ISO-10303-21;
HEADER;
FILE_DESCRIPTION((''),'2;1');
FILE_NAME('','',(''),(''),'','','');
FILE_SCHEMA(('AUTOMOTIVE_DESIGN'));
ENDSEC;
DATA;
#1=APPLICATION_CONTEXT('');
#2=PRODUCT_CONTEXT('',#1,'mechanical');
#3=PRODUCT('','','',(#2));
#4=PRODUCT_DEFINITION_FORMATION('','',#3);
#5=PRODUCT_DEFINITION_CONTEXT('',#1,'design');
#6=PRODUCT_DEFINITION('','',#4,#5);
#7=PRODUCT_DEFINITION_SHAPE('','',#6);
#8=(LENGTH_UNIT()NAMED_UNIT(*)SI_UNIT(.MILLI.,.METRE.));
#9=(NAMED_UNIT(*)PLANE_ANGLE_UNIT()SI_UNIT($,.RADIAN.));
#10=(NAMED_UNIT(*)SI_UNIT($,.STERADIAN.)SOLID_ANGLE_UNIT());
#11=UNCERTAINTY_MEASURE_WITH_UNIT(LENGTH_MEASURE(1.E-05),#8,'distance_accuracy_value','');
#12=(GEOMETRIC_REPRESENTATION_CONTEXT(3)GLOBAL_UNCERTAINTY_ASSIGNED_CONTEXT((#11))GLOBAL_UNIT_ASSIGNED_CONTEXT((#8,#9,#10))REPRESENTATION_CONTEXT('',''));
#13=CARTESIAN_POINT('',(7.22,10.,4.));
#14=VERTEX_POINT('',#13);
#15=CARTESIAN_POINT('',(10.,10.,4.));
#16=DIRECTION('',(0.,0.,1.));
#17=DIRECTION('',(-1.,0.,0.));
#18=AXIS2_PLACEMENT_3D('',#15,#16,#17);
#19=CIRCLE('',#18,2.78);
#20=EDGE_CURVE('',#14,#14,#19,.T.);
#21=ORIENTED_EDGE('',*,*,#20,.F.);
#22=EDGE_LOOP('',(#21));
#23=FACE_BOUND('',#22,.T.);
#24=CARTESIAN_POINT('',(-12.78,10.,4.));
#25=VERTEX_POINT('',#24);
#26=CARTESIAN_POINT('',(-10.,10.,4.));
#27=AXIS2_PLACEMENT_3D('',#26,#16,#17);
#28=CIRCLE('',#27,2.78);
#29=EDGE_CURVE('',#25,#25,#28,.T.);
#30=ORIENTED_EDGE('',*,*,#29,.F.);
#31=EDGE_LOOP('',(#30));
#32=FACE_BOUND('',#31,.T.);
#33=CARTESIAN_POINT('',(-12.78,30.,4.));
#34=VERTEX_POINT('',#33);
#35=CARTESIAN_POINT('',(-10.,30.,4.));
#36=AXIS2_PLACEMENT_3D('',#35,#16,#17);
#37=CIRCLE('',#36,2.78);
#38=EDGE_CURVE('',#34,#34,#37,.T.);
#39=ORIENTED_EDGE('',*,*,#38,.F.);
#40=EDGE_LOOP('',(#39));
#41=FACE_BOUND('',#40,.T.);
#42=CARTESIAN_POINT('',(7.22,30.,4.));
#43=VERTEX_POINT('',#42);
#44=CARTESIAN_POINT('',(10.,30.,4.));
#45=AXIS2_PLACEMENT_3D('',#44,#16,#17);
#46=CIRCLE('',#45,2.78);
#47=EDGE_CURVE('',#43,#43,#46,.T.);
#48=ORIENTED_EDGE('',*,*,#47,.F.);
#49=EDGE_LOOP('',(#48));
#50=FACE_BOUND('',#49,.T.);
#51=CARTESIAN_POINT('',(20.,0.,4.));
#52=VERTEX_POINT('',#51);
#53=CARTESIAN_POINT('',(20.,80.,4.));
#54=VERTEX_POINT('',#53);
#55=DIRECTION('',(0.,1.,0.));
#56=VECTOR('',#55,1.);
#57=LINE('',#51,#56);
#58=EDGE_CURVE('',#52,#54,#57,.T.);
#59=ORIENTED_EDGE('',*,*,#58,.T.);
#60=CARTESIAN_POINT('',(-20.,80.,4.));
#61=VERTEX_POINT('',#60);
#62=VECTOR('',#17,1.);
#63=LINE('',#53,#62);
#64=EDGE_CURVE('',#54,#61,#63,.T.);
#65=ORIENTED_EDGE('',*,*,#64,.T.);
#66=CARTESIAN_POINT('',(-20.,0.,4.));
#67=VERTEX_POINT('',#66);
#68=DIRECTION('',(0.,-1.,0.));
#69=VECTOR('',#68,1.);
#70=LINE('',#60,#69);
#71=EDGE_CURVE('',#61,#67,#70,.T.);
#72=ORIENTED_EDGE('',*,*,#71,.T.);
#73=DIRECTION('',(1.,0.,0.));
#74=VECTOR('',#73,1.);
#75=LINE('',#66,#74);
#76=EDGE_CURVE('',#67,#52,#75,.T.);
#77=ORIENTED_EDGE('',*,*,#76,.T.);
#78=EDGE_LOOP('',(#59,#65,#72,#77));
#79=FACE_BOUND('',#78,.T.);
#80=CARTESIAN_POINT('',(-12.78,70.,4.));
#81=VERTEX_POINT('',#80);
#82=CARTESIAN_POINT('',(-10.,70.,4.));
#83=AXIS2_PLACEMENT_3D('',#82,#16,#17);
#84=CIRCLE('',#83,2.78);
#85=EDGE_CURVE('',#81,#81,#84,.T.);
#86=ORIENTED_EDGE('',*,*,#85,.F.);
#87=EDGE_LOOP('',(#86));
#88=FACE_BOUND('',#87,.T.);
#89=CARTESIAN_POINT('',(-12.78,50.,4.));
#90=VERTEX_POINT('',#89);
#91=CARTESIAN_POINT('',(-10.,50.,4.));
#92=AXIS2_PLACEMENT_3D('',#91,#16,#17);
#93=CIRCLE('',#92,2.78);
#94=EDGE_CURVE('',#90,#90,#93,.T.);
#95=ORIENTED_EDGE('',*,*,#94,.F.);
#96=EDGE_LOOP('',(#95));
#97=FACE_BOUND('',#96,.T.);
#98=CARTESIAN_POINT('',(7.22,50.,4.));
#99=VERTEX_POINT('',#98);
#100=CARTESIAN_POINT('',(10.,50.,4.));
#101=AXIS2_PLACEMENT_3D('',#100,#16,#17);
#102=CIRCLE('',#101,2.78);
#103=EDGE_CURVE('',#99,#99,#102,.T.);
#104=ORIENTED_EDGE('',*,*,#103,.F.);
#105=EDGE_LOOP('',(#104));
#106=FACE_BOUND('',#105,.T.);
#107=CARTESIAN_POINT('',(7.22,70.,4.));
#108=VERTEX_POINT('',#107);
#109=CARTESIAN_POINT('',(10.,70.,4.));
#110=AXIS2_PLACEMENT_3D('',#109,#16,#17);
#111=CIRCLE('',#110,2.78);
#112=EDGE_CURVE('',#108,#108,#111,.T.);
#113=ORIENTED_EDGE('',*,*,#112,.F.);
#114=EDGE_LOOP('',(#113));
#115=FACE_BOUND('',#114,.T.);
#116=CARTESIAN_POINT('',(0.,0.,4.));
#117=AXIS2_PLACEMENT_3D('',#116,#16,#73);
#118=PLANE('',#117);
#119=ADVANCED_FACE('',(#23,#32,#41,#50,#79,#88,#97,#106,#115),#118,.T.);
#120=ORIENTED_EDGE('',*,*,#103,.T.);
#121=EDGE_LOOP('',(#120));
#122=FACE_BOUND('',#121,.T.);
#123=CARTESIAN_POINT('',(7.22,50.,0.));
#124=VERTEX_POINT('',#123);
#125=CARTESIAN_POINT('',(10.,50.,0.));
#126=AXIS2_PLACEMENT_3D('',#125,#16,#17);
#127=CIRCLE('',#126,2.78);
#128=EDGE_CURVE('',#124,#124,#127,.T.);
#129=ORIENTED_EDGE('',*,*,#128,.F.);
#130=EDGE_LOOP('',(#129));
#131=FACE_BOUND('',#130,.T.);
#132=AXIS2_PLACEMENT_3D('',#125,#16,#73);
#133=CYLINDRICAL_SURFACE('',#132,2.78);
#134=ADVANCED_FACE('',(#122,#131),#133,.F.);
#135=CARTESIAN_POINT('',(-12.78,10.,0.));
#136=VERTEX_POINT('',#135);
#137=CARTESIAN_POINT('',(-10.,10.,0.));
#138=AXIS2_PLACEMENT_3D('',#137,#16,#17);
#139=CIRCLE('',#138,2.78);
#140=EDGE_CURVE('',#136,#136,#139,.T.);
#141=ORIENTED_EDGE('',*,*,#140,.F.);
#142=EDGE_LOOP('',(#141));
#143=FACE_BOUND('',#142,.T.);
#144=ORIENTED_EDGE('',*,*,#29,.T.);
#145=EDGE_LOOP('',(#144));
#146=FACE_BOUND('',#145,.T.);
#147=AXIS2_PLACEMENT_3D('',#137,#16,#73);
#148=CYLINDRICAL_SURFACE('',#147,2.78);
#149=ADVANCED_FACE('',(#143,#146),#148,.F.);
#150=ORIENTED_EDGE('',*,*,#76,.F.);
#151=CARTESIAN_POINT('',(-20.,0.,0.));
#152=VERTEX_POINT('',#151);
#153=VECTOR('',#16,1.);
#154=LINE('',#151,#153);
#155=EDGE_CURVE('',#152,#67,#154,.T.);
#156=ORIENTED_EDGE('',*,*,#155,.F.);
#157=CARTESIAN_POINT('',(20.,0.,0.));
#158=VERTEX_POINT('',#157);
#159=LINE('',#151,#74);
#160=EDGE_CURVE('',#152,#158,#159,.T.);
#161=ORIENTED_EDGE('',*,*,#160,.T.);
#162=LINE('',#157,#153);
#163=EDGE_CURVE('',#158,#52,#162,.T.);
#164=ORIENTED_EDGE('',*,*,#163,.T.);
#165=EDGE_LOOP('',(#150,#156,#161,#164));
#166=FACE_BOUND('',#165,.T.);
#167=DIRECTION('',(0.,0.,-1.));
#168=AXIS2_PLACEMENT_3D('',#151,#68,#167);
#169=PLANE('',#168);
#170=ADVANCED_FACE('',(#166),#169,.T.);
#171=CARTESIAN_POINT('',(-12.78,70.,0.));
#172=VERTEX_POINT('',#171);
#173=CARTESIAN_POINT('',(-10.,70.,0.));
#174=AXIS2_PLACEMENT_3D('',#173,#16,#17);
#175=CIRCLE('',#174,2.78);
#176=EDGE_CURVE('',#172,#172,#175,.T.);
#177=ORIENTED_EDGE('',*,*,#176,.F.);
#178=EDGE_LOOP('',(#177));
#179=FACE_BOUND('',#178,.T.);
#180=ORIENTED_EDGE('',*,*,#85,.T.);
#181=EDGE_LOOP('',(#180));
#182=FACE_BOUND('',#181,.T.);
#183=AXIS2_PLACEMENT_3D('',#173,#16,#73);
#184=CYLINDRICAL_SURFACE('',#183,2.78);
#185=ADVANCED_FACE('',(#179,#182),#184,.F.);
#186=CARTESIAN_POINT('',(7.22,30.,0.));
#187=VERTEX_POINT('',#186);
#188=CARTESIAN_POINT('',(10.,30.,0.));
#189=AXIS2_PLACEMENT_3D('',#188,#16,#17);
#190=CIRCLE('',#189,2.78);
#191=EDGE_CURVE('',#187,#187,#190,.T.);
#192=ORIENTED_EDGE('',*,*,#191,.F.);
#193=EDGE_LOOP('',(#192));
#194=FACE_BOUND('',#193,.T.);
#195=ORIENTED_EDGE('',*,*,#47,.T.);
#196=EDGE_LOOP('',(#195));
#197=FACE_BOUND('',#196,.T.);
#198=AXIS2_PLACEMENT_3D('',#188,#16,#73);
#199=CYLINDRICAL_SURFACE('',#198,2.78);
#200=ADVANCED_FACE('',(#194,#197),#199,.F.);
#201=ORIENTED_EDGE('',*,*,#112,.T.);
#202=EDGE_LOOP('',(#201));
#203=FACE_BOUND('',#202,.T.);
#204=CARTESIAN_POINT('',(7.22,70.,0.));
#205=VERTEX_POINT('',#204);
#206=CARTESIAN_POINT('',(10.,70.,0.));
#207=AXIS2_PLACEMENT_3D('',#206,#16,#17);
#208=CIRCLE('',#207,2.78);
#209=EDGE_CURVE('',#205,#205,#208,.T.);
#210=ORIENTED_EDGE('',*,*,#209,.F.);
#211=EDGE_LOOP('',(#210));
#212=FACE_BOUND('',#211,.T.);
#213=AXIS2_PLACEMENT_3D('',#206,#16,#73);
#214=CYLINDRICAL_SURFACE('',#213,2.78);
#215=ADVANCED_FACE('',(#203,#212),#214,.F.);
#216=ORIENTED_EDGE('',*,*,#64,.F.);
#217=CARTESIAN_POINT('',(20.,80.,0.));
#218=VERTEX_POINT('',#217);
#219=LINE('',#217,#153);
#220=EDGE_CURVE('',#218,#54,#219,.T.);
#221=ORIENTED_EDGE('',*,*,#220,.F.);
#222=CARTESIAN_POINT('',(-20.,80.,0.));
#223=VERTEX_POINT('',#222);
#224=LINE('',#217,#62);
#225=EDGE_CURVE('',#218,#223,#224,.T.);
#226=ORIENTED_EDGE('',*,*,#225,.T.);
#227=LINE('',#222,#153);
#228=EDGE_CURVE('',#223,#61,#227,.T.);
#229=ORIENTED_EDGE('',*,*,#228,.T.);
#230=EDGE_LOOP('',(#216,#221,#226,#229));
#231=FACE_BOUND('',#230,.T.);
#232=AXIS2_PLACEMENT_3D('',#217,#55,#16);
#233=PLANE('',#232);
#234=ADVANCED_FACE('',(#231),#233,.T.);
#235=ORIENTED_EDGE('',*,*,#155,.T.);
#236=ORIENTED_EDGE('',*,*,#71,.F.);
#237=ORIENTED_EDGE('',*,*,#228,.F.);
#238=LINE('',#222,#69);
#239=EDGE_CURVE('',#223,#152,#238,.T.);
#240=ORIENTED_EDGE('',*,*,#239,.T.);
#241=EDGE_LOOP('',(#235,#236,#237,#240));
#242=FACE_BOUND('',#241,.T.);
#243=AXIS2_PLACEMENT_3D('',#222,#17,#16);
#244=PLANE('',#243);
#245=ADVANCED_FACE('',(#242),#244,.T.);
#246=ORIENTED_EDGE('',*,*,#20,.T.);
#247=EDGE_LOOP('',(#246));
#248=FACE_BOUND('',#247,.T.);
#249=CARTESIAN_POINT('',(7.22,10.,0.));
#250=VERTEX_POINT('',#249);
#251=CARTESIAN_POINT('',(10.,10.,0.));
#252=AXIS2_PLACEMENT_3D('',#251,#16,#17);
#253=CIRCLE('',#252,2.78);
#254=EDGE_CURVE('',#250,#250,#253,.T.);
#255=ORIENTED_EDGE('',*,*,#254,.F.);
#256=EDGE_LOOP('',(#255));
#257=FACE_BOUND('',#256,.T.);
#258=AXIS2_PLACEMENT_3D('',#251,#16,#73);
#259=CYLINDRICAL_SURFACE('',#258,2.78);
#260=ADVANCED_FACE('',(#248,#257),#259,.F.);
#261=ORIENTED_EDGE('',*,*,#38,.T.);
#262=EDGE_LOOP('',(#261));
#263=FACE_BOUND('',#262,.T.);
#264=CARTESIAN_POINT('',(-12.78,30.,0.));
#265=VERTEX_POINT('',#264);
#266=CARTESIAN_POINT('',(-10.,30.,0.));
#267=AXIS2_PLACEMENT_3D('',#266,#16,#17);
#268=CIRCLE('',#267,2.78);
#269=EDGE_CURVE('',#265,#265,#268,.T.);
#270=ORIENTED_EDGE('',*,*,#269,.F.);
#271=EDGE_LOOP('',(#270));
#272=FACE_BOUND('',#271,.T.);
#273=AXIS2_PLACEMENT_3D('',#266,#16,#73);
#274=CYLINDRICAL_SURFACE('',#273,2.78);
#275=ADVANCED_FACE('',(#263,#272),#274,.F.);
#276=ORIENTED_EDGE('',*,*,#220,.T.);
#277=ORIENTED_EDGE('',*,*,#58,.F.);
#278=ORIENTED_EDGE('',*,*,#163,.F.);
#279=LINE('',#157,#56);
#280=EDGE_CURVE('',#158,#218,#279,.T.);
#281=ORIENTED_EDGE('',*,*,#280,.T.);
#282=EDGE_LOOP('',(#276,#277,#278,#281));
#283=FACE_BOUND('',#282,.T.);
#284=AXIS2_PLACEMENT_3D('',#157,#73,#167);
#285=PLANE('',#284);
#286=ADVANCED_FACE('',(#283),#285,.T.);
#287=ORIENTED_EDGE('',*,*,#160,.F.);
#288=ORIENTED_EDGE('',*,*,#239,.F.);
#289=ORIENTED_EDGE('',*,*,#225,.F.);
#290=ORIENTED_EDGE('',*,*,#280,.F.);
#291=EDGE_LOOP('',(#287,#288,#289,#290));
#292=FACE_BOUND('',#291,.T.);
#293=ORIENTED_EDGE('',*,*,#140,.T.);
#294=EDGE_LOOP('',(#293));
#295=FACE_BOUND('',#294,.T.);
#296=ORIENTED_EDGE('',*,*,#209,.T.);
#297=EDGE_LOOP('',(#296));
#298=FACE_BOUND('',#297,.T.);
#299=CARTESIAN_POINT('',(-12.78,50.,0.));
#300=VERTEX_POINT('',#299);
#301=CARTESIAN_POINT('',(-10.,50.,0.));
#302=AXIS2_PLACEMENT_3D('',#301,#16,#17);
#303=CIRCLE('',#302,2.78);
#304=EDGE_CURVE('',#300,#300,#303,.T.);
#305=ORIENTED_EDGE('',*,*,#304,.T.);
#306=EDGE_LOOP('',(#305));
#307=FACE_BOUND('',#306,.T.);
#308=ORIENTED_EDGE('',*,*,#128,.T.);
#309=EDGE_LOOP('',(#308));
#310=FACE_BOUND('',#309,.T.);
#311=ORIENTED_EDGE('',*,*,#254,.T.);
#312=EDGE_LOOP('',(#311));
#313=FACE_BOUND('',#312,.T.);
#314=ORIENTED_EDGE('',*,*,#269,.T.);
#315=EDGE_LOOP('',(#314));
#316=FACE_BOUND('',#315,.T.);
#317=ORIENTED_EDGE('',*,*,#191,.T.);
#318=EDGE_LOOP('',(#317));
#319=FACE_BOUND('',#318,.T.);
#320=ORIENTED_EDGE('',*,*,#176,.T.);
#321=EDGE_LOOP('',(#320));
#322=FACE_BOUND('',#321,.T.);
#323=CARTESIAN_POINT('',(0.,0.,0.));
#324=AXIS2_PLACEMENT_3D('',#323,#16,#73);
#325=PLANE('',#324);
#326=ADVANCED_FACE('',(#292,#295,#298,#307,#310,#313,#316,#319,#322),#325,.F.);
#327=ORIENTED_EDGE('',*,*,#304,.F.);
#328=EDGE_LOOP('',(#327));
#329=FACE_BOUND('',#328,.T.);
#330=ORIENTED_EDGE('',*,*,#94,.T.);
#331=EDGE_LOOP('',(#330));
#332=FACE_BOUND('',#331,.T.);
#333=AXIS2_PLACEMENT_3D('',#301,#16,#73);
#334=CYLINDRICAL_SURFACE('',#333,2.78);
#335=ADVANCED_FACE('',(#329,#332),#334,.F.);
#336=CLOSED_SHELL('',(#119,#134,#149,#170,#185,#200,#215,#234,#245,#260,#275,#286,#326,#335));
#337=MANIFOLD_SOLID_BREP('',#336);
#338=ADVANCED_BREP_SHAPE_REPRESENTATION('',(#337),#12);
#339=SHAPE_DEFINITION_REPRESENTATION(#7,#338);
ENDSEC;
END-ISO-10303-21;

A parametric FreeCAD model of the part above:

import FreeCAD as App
import Part
import Sketcher

V = App.Vector
Q = App.Units.Quantity


def add_polygon(sketch, points):
    """Adds a closed chain of lines whose ends are joined by coincident constraints."""
    first, n = sketch.GeometryCount, len(points)
    for a, b in zip(points, points[1:] + points[:1]):
        sketch.addGeometry(Part.LineSegment(App.Vector(*a, 0), App.Vector(*b, 0)), False)
    for i in range(n):
        sketch.addConstraint(Sketcher.Constraint("Coincident", first + i, 2, first + (i + 1) % n, 1))

doc = App.newDocument("Part")
body = doc.addObject("PartDesign::Body", "Body")

sketch1 = body.newObject("Sketcher::SketchObject", "Sketch")
sketch1.AttachmentSupport = (doc.getObject("XY_Plane"), [""])
sketch1.MapMode = "FlatFace"
sketch1.AttachmentOffset = App.Placement(V(0, 0, 4), App.Rotation())
add_polygon(sketch1, [(-20, 80), (-20, 0), (20, 0), (20, 80)])
sketch1.addGeometry(Part.Circle(V(-10, 10, 0), V(0, 0, 1), 2.78), False)
sketch1.addGeometry(Part.Circle(V(-10, 30, 0), V(0, 0, 1), 2.78), False)
sketch1.addGeometry(Part.Circle(V(10, 10, 0), V(0, 0, 1), 2.78), False)
sketch1.addGeometry(Part.Circle(V(10, 30, 0), V(0, 0, 1), 2.78), False)
sketch1.addGeometry(Part.Circle(V(-10, 50, 0), V(0, 0, 1), 2.78), False)
sketch1.addGeometry(Part.Circle(V(-10, 70, 0), V(0, 0, 1), 2.78), False)
sketch1.addGeometry(Part.Circle(V(10, 50, 0), V(0, 0, 1), 2.78), False)
sketch1.addGeometry(Part.Circle(V(10, 70, 0), V(0, 0, 1), 2.78), False)
sketch1.addConstraint([
    Sketcher.Constraint("Vertical", 0),
    Sketcher.Constraint("Horizontal", 1),
    Sketcher.Constraint("Vertical", 2),
    Sketcher.Constraint("Horizontal", 3),
    Sketcher.Constraint("Equal", 4, 5),
    Sketcher.Constraint("Equal", 5, 6),
    Sketcher.Constraint("Equal", 6, 7),
    Sketcher.Constraint("Equal", 7, 8),
    Sketcher.Constraint("Equal", 8, 9),
    Sketcher.Constraint("Equal", 9, 10),
    Sketcher.Constraint("Equal", 10, 11),
    Sketcher.Constraint("Symmetric", 0, 2, 1, 2, -1, 1),
    Sketcher.Constraint("Symmetric", 4, 3, 6, 3, -2),
    Sketcher.Constraint("Symmetric", 5, 3, 7, 3, -2),
    Sketcher.Constraint("Symmetric", 8, 3, 10, 3, -2),
    Sketcher.Constraint("Symmetric", 9, 3, 11, 3, -2),
    Sketcher.Constraint("Vertical", 4, 3, 5, 3),
    Sketcher.Constraint("Vertical", 5, 3, 8, 3),
    Sketcher.Constraint("Vertical", 8, 3, 9, 3),
    Sketcher.Constraint("Diameter", 4, Q("5.56 mm")),
    Sketcher.Constraint("DistanceX", 1, 1, 1, 2, Q("40 mm")),
    Sketcher.Constraint("DistanceY", 0, 2, 0, 1, Q("80 mm")),
    Sketcher.Constraint("DistanceX", 4, 3, -1, 1, Q("10 mm")),
    Sketcher.Constraint("DistanceY", -1, 1, 4, 3, Q("10 mm")),
    Sketcher.Constraint("DistanceY", -1, 1, 5, 3, Q("30 mm")),
    Sketcher.Constraint("DistanceY", -1, 1, 8, 3, Q("50 mm")),
    Sketcher.Constraint("DistanceY", -1, 1, 9, 3, Q("70 mm")),
])
pad1 = body.newObject("PartDesign::Pad", "Pad")
pad1.Profile = sketch1
pad1.Length = 4
pad1.Reversed = True

doc.recompute()
